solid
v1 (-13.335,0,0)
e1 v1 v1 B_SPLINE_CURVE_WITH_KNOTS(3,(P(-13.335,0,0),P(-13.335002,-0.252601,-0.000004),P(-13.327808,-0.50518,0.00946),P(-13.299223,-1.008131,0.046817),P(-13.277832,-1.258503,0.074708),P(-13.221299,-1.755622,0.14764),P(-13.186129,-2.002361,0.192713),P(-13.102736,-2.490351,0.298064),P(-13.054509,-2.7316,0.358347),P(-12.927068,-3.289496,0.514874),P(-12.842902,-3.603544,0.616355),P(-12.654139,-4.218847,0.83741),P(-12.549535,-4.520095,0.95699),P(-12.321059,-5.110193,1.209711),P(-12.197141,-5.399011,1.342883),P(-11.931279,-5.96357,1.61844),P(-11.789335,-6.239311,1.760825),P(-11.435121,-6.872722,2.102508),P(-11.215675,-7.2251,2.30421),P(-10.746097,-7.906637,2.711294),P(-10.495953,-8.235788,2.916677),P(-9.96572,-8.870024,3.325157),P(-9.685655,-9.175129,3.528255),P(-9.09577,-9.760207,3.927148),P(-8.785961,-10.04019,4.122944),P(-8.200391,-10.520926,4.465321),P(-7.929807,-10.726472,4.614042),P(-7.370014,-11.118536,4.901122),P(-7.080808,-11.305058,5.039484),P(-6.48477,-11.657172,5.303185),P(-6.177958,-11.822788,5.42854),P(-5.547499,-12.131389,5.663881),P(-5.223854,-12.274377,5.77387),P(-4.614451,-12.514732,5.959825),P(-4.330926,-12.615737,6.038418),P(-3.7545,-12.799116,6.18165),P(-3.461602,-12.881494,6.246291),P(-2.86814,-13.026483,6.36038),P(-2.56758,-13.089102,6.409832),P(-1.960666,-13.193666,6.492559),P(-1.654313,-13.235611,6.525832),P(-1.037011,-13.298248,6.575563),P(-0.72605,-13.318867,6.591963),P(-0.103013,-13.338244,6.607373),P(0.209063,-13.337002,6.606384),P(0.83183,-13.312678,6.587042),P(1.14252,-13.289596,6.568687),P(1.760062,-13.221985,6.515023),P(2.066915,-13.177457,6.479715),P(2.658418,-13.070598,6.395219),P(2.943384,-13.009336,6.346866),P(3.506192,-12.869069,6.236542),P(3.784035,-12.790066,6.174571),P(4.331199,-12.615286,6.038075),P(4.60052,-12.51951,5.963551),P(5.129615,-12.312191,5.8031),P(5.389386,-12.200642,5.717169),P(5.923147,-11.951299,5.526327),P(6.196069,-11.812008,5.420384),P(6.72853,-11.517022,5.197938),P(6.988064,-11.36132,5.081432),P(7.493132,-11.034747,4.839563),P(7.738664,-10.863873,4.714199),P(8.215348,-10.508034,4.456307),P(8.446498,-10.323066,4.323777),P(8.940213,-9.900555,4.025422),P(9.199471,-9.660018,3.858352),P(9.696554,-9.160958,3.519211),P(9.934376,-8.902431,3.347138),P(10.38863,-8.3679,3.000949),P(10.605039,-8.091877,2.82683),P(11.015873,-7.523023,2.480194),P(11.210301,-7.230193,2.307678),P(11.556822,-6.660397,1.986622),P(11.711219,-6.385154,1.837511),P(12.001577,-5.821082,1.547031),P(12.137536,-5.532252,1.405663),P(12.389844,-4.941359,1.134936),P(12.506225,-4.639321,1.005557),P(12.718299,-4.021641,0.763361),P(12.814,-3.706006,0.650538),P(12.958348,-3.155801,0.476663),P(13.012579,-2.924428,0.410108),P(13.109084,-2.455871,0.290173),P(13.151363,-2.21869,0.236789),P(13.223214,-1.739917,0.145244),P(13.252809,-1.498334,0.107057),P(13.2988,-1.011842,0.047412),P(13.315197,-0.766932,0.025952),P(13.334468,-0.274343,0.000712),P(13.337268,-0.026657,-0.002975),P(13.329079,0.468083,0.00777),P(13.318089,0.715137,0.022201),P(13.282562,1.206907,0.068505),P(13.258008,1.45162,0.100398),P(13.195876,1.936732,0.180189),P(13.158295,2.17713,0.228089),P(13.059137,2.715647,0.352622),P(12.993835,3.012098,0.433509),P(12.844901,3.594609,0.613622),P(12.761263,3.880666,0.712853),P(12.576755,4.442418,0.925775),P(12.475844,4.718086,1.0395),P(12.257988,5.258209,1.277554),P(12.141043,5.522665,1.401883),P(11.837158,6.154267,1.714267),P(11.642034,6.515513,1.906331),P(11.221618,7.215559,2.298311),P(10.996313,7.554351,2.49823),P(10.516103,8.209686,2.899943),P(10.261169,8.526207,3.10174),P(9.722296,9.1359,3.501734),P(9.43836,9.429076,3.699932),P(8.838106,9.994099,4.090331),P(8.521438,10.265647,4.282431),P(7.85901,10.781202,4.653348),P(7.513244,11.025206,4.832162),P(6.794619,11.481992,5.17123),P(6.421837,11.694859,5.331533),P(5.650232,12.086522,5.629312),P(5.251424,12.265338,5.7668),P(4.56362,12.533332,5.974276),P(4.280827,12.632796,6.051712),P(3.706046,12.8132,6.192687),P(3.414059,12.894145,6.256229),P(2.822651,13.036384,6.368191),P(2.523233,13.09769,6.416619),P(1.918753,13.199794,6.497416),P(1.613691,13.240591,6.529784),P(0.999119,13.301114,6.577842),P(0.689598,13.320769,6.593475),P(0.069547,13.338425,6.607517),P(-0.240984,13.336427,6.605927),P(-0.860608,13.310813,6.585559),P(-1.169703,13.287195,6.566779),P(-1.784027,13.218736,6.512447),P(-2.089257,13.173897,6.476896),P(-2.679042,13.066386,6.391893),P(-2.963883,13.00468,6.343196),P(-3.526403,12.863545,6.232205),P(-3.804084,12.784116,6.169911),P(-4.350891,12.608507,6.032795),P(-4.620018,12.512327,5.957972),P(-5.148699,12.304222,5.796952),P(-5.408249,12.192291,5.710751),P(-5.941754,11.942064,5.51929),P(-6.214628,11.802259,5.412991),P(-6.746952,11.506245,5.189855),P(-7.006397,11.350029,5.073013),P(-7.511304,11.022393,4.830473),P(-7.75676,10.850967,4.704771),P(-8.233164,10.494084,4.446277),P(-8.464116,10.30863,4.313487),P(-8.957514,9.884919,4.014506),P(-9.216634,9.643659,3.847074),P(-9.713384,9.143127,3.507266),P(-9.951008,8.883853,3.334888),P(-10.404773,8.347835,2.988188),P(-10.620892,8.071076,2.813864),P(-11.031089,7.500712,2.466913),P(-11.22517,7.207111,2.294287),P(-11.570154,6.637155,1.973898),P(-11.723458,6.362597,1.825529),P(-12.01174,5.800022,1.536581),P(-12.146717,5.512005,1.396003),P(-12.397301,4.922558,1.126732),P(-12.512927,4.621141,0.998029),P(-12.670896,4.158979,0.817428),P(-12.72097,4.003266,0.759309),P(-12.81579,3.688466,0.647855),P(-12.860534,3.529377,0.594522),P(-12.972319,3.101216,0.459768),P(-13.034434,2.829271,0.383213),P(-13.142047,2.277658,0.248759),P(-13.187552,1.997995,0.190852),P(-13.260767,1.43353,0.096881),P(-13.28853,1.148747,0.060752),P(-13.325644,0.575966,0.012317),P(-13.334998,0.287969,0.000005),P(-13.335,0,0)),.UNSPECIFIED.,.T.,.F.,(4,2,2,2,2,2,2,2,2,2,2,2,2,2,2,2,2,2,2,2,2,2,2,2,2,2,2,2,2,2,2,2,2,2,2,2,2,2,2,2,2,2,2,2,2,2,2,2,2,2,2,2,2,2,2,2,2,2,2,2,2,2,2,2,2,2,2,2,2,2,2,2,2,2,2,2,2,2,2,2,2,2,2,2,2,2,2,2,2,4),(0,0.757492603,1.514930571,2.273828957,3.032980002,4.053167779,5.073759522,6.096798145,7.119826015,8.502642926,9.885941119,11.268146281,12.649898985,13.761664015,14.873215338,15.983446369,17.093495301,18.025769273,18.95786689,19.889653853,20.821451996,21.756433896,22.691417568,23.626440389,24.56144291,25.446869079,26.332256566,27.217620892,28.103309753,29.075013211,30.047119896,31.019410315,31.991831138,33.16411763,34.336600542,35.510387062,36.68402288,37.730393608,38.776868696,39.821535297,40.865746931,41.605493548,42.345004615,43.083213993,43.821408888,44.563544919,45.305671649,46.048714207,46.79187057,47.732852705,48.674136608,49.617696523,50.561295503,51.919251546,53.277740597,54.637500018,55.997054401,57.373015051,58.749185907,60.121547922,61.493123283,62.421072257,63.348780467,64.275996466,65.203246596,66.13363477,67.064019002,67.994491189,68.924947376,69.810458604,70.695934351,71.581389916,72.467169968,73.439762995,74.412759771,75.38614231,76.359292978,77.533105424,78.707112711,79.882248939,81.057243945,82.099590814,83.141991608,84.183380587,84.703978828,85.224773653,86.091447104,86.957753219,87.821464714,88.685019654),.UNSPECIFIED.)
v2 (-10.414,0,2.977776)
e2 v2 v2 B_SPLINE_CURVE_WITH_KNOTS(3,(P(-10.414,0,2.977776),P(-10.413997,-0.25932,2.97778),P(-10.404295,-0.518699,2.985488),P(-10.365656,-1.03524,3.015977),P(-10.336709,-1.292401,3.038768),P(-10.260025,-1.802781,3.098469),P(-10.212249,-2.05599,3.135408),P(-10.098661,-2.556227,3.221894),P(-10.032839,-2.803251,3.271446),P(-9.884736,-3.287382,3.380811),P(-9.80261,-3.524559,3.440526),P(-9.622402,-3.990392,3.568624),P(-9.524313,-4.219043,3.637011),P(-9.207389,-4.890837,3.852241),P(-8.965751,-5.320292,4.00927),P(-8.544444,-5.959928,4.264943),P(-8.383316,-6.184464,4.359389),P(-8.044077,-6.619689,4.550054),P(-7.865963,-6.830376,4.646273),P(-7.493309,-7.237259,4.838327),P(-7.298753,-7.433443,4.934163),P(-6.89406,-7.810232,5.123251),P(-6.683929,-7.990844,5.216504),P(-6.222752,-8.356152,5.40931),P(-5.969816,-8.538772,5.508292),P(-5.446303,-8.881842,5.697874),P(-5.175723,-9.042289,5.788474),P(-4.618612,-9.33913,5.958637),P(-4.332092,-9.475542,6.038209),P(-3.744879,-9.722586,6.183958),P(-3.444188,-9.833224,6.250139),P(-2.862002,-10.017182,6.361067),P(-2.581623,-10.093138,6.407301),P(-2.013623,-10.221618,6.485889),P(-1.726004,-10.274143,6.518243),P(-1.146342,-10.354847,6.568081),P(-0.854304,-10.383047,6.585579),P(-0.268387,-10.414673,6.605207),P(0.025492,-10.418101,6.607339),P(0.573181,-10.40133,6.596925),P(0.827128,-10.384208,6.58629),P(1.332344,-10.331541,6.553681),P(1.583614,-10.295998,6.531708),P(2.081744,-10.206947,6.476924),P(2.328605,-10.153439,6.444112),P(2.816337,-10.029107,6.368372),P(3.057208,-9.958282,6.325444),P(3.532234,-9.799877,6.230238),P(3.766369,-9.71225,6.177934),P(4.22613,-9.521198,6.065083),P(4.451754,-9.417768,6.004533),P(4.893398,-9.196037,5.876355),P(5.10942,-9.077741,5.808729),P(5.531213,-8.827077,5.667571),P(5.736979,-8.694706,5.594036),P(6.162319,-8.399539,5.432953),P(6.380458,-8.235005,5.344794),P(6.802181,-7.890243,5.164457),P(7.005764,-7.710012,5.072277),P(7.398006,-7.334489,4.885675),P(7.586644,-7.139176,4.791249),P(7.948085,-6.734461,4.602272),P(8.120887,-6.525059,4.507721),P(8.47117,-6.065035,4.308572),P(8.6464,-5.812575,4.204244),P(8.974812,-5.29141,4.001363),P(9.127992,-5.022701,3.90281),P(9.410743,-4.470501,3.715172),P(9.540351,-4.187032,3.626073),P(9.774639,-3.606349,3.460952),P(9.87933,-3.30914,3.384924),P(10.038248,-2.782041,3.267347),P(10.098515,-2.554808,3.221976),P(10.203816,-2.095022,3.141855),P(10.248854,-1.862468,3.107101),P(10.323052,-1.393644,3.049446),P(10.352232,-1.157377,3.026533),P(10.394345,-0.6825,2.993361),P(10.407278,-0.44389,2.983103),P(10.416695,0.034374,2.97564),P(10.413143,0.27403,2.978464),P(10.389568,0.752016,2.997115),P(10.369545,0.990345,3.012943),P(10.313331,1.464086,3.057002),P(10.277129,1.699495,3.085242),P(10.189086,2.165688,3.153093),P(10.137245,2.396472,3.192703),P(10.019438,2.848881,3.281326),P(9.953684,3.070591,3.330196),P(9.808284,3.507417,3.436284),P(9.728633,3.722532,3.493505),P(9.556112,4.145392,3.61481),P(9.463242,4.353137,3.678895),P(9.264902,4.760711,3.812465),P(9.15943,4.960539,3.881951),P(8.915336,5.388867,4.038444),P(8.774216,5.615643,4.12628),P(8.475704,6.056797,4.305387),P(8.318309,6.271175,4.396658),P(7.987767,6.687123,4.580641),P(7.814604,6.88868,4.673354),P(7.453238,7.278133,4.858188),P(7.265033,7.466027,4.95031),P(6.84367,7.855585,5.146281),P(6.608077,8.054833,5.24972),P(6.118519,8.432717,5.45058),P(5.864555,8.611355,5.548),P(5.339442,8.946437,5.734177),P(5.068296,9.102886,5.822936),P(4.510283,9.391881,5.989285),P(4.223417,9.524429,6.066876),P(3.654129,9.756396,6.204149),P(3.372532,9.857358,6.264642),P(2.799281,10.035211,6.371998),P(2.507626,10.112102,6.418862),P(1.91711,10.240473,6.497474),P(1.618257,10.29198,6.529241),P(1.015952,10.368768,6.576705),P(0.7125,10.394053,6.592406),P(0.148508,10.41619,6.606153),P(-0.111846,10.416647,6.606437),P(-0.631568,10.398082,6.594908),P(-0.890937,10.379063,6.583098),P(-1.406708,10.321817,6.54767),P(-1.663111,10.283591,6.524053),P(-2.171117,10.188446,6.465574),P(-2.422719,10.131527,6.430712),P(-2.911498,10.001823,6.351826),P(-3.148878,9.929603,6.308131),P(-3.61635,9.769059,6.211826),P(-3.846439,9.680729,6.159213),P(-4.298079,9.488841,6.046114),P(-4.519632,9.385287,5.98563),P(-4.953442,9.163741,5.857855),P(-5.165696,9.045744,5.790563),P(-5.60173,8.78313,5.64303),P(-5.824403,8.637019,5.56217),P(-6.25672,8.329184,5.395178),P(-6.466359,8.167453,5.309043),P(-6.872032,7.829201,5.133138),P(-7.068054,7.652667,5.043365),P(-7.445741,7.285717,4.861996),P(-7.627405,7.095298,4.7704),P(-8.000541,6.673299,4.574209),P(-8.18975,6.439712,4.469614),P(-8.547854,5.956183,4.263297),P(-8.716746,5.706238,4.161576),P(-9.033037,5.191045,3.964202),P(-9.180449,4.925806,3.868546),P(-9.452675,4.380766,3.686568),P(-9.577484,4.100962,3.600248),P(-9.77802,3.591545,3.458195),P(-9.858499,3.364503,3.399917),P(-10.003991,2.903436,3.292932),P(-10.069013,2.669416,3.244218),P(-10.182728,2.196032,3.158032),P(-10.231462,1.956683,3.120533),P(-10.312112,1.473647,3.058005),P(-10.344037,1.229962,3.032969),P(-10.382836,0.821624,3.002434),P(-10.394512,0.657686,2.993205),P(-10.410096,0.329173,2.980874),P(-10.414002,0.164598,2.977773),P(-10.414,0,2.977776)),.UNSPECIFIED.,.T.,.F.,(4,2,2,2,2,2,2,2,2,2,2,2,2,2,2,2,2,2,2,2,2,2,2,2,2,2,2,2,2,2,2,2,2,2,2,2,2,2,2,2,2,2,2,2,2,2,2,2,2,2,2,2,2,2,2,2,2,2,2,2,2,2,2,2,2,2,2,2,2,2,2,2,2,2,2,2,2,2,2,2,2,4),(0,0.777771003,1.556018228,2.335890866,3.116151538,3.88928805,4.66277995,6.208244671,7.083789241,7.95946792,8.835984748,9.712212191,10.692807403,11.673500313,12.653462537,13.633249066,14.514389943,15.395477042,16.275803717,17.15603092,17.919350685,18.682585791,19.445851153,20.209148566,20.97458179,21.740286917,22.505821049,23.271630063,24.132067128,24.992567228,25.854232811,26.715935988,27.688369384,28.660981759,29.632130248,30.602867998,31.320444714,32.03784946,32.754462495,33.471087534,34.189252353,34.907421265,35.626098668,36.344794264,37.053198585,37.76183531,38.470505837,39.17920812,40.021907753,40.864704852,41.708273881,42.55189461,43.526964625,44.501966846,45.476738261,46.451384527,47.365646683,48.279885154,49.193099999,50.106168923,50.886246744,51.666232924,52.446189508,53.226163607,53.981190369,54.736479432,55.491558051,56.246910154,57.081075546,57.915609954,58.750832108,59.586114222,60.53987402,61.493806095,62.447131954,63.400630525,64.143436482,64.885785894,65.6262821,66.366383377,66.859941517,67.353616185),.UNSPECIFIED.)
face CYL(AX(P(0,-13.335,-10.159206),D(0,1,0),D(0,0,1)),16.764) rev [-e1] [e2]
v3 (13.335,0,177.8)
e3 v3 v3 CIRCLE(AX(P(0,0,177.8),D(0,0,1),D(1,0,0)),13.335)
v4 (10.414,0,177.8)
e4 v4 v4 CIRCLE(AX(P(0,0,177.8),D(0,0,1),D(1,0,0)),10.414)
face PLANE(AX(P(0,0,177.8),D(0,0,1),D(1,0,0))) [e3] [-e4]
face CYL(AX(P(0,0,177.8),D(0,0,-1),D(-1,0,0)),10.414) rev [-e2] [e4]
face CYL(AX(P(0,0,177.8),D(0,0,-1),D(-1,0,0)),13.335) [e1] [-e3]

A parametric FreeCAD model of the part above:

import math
import FreeCAD as App
import Part
import Sketcher

V = App.Vector
Q = App.Units.Quantity

doc = App.newDocument("Part")
body = doc.addObject("PartDesign::Body", "Body")

# Sketch on XY plane
sketch1 = body.newObject("Sketcher::SketchObject", "Sketch")
sketch1.AttachmentSupport = (doc.getObject("XY_Plane"), [""])
sketch1.MapMode = "FlatFace"
sketch1.addGeometry(Part.Circle(V(0, 0, 0), V(0, 0, 1), 13), False)
sketch1.addGeometry(Part.Circle(V(0, 0, 0), V(0, 0, 1), 10), False)
sketch1.addConstraint(Sketcher.Constraint("Coincident", 0, 3, -1, 1))
sketch1.addConstraint(Sketcher.Constraint("Coincident", 1, 3, -1, 1))
sketch1.addConstraint(Sketcher.Constraint("Diameter", 0, Q("1.05 in")))
sketch1.addConstraint(Sketcher.Constraint("Diameter", 1, Q("0.82 in")))
pad1 = body.newObject("PartDesign::Pad", "Pad")
pad1.Profile = sketch1
pad1.Length = Q("7 in")

# Sketch on XZ plane
sketch2 = body.newObject("Sketcher::SketchObject", "Sketch001")
sketch2.AttachmentSupport = (doc.getObject("XZ_Plane"), [""])
sketch2.MapMode = "FlatFace"
sketch2.addGeometry(Part.LineSegment(V(13, 0, 0), V(-13, 0, 0)), False)
sketch2.addGeometry(Part.ArcOfCircle(Part.Circle(V(0, -10, 0), V(0, 0, 1), 17), math.radians(37), math.radians(143)), False)
sketch2.addConstraint(Sketcher.Constraint("Coincident", 0, 1, 1, 1))
sketch2.addConstraint(Sketcher.Constraint("Coincident", 1, 2, 0, 2))
sketch2.addConstraint(Sketcher.Constraint("Horizontal", 0))
sketch2.addConstraint(Sketcher.Constraint("Symmetric", 0, 1, 1, 2, -1, 1))
sketch2.addConstraint(Sketcher.Constraint("Radius", 1, Q("0.66 in")))
sketch2.addConstraint(Sketcher.Constraint("DistanceX", 0, 2, 0, 1, Q("1.05 in")))
pocket1 = body.newObject("PartDesign::Pocket", "Pocket")
pocket1.Profile = sketch2
pocket1.Type = "ThroughAll"
pocket1.Midplane = True

doc.recompute()
